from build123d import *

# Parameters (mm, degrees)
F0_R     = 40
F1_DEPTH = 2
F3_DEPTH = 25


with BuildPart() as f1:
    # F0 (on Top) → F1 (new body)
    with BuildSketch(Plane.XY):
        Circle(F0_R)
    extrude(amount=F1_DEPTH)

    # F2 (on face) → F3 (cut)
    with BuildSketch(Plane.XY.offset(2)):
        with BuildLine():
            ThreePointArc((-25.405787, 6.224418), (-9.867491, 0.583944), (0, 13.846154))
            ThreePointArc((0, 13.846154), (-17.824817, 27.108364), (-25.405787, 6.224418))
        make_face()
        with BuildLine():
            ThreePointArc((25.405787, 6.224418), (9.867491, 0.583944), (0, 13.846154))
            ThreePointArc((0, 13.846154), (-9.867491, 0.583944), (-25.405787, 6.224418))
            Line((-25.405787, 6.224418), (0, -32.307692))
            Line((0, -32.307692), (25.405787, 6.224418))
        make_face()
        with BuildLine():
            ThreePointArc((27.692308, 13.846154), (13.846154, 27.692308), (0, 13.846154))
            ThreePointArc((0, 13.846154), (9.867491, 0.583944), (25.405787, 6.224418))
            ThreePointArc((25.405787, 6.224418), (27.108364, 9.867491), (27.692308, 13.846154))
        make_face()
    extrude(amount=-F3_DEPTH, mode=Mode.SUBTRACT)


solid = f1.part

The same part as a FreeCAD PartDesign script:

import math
import FreeCAD as App
import Part
import Sketcher
from FreeCAD import Vector
Q = App.Units.Quantity

doc = App.newDocument("Part")
body = doc.addObject("PartDesign::Body", "Body")

sketch1 = doc.addObject("Sketcher::SketchObject", "Sketch")
body.addObject(sketch1)
sketch1.AttachmentSupport = (doc.XY_Plane, [""])
sketch1.MapMode = "FlatFace"
sketch1.addGeometry(Part.Circle(Vector(0, 0, 0), Vector(0, 0, 1), 40), False)
sketch1.addConstraint(Sketcher.Constraint("Coincident", 0, 3, -1, 1))
sketch1.addConstraint(Sketcher.Constraint("Diameter", 0, Q("80 mm")))
pad1 = doc.addObject("PartDesign::Pad", "Pad")
body.addObject(pad1)
pad1.Profile = sketch1
pad1.Length = 2

sketch2 = doc.addObject("Sketcher::SketchObject", "Sketch001")
body.addObject(sketch2)
sketch2.AttachmentSupport = (doc.XY_Plane, [""])
sketch2.MapMode = "FlatFace"
sketch2.AttachmentOffset = App.Placement(Vector(0, 0, 2), App.Rotation())
sketch2.addGeometry(Part.ArcOfCircle(Part.Circle(Vector(-14, 14, 0), Vector(0, 0, 1), 14), math.radians(0), math.radians(213)), False)
sketch2.addGeometry(Part.LineSegment(Vector(-25, 6, 0), Vector(0, -32, 0)), False)
sketch2.addGeometry(Part.LineSegment(Vector(0, -32, 0), Vector(25, 6, 0)), False)
sketch2.addGeometry(Part.ArcOfCircle(Part.Circle(Vector(14, 14, 0), Vector(0, 0, 1), 14), math.radians(-33), math.radians(0)), False)
sketch2.addGeometry(Part.ArcOfCircle(Part.Circle(Vector(14, 14, 0), Vector(0, 0, 1), 14), math.radians(0), math.radians(180)), False)
sketch2.addConstraint(Sketcher.Constraint("Tangent", 0, 2, 1, 1))
sketch2.addConstraint(Sketcher.Constraint("Coincident", 1, 2, 2, 1))
sketch2.addConstraint(Sketcher.Constraint("Tangent", 2, 2, 3, 1))
sketch2.addConstraint(Sketcher.Constraint("Tangent", 3, 2, 4, 1))
sketch2.addConstraint(Sketcher.Constraint("Tangent", 4, 2, 0, 1))
sketch2.addConstraint(Sketcher.Constraint("Equal", 0, 4))
sketch2.addConstraint(Sketcher.Constraint("Symmetric", 0, 3, 3, 3, -2))
sketch2.addConstraint(Sketcher.Constraint("Symmetric", 0, 2, 2, 2, -2))
sketch2.addConstraint(Sketcher.Constraint("Horizontal", 4, 3, 3, 2))
sketch2.addConstraint(Sketcher.Constraint("Radius", 0, Q("13.846154 mm")))
sketch2.addConstraint(Sketcher.Constraint("DistanceX", 0, 2, 4, 3, Q("39.251941 mm")))
sketch2.addConstraint(Sketcher.Constraint("DistanceY", -1, 1, 0, 3, Q("13.846154 mm")))
pocket1 = doc.addObject("PartDesign::Pocket", "Pocket")
body.addObject(pocket1)
pocket1.Profile = sketch2
pocket1.Length = 25

doc.recompute()
